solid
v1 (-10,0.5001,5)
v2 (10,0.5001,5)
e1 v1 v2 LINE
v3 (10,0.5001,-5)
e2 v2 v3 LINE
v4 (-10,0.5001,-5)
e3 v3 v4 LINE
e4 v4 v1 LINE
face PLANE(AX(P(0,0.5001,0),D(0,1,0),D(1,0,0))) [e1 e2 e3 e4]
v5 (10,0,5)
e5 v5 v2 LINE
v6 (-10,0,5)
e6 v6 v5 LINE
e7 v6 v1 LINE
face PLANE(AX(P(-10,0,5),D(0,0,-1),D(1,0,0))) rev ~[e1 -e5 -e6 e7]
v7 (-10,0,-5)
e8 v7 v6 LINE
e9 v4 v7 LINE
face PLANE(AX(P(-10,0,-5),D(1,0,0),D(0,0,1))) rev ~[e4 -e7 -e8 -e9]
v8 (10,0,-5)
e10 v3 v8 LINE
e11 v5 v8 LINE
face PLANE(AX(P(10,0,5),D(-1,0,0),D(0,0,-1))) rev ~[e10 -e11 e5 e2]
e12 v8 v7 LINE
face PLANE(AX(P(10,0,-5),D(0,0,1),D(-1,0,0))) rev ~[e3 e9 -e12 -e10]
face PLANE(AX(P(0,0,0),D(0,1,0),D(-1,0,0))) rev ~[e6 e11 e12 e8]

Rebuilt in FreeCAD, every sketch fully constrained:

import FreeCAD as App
import Part
import Sketcher
from FreeCAD import Vector

doc = App.newDocument("Part")
body = doc.addObject("PartDesign::Body", "Body")

# Sketch on XZ plane
sketch1 = body.newObject("Sketcher::SketchObject", "Sketch")
sketch1.AttachmentSupport = (doc.getObject("XZ_Plane"), [""])
sketch1.MapMode = "FlatFace"
sketch1.addGeometry(Part.LineSegment(Vector(-10, -5, 0), Vector(-10, 5, 0)), False)
sketch1.addGeometry(Part.LineSegment(Vector(-10, 5, 0), Vector(10, 5, 0)), False)
sketch1.addGeometry(Part.LineSegment(Vector(10, 5, 0), Vector(10, -5, 0)), False)
sketch1.addGeometry(Part.LineSegment(Vector(10, -5, 0), Vector(-10, -5, 0)), False)
sketch1.addConstraint(Sketcher.Constraint("Coincident", 0, 2, 1, 1))
sketch1.addConstraint(Sketcher.Constraint("Coincident", 1, 2, 2, 1))
sketch1.addConstraint(Sketcher.Constraint("Coincident", 2, 2, 3, 1))
sketch1.addConstraint(Sketcher.Constraint("Coincident", 3, 2, 0, 1))
sketch1.addConstraint(Sketcher.Constraint("Vertical", 0))
sketch1.addConstraint(Sketcher.Constraint("Horizontal", 1))
sketch1.addConstraint(Sketcher.Constraint("Vertical", 2))
sketch1.addConstraint(Sketcher.Constraint("Horizontal", 3))
sketch1.addConstraint(Sketcher.Constraint("Symmetric", 0, 2, 2, 2, -1, 1))
sketch1.addConstraint(Sketcher.Constraint("DistanceX", 1, 1, 1, 2, 20.0))
sketch1.addConstraint(Sketcher.Constraint("DistanceY", 0, 1, 0, 2, 10.0))
pad1 = body.newObject("PartDesign::Pad", "Pad")
pad1.Profile = sketch1
pad1.Length = 0.5
pad1.Reversed = True

# Sketch on XZ plane
sketch2 = body.newObject("Sketcher::SketchObject", "Sketch001")
sketch2.AttachmentSupport = (doc.getObject("XZ_Plane"), [""])
sketch2.MapMode = "FlatFace"
sketch2.AttachmentOffset = App.Placement(Vector(0, 0, -0.5), App.Rotation())
sketch2.addGeometry(Part.LineSegment(Vector(-10, -5, 0), Vector(-10, 5, 0)), False)
sketch2.addGeometry(Part.LineSegment(Vector(-10, 5, 0), Vector(10, 5, 0)), False)
sketch2.addGeometry(Part.LineSegment(Vector(10, 5, 0), Vector(10, -5, 0)), False)
sketch2.addGeometry(Part.LineSegment(Vector(10, -5, 0), Vector(-10, -5, 0)), False)
sketch2.addConstraint(Sketcher.Constraint("Coincident", 0, 2, 1, 1))
sketch2.addConstraint(Sketcher.Constraint("Coincident", 1, 2, 2, 1))
sketch2.addConstraint(Sketcher.Constraint("Coincident", 2, 2, 3, 1))
sketch2.addConstraint(Sketcher.Constraint("Coincident", 3, 2, 0, 1))
sketch2.addConstraint(Sketcher.Constraint("Vertical", 0))
sketch2.addConstraint(Sketcher.Constraint("Horizontal", 1))
sketch2.addConstraint(Sketcher.Constraint("Vertical", 2))
sketch2.addConstraint(Sketcher.Constraint("Horizontal", 3))
sketch2.addConstraint(Sketcher.Constraint("Symmetric", 0, 2, 2, 2, -1, 1))
sketch2.addConstraint(Sketcher.Constraint("DistanceX", 1, 1, 1, 2, 20.0))
sketch2.addConstraint(Sketcher.Constraint("DistanceY", 0, 1, 0, 2, 10.0))
pad2 = body.newObject("PartDesign::Pad", "Pad001")
pad2.Profile = sketch2
pad2.Length = 0.0001
pad2.Reversed = True

doc.recompute()
